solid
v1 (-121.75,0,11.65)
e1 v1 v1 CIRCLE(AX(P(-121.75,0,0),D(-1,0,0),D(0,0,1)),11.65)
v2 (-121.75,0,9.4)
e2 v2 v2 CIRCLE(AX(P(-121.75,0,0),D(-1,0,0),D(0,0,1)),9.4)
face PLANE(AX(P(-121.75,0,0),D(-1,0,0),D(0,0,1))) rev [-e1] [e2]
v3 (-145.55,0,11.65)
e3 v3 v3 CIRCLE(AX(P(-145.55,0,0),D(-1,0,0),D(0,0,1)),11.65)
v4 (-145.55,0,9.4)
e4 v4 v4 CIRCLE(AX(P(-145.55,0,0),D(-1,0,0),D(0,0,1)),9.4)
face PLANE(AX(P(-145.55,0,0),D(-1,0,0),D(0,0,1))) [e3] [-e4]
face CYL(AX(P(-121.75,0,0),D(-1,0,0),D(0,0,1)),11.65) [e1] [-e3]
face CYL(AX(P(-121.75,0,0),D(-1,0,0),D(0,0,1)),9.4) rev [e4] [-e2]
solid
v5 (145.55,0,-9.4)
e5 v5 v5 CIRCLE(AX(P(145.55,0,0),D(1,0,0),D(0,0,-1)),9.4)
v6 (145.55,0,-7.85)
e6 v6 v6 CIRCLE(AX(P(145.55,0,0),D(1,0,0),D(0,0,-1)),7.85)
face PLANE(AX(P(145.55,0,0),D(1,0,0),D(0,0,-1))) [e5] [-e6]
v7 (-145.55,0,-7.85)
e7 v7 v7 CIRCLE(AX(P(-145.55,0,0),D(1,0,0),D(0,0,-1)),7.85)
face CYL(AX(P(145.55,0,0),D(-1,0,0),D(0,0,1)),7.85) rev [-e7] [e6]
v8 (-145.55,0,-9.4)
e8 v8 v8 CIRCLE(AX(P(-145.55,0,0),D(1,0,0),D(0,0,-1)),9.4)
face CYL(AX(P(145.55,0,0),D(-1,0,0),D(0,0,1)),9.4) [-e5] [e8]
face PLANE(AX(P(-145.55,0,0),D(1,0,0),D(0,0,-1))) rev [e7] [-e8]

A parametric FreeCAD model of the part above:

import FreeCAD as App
import Part
import Sketcher

V = App.Vector

doc = App.newDocument("Part")
params = doc.addObject("Spreadsheet::Sheet", "Params")
for row, (alias, value) in enumerate([
    ("sketch1_diameter", "18.8 mm"),
    ("sketch1_diameter2", "15.7 mm"),
    ("pad1_length", "291.1 mm"),
    ("sketch2_diameter", "23.3 mm"),
    ("sketch2_diameter2", "18.8 mm"),
    ("pad2_length", "23.8 mm"),
], start=1):
    params.set(f"A{row}", alias)
    params.set(f"B{row}", "=" + value)
    params.setAlias(f"B{row}", alias)

body = doc.addObject("PartDesign::Body", "Body")

sketch1 = body.newObject("Sketcher::SketchObject", "Sketch")
sketch1.AttachmentSupport = (doc.getObject("YZ_Plane"), [""])
sketch1.MapMode = "FlatFace"
sketch1.addGeometry([
    Part.Circle(V(0, 0, 0), V(0, 0, 1), 9),
    Part.Circle(V(0, 0, 0), V(0, 0, 1), 8),
], False)
sketch1.addConstraint([
    Sketcher.Constraint("Coincident", 0, 3, -1, 1),
    Sketcher.Constraint("Coincident", 1, 3, -1, 1),
    Sketcher.Constraint("Diameter", 0, 18.8),
    Sketcher.Constraint("Diameter", 1, 15.7),
])
sketch1.setExpression("Constraints[2]", "Params.sketch1_diameter")
sketch1.setExpression("Constraints[3]", "Params.sketch1_diameter2")
pad1 = body.newObject("PartDesign::Pad", "Pad")
pad1.Profile = sketch1
pad1.setExpression("Length", "Params.pad1_length")
pad1.Midplane = True
body2 = doc.addObject("PartDesign::Body", "Body001")

sketch2 = body2.newObject("Sketcher::SketchObject", "Sketch001")
sketch2.AttachmentSupport = (doc.getObject("YZ_Plane001"), [""])
sketch2.MapMode = "FlatFace"
sketch2.AttachmentOffset = App.Placement(V(0, 0, -145.55), App.Rotation())
sketch2.addGeometry([
    Part.Circle(V(0, 0, 0), V(0, 0, 1), 12),
    Part.Circle(V(0, 0, 0), V(0, 0, 1), 9),
], False)
sketch2.addConstraint([
    Sketcher.Constraint("Coincident", 0, 3, -1, 1),
    Sketcher.Constraint("Coincident", 1, 3, -1, 1),
    Sketcher.Constraint("Diameter", 0, 23.3),
    Sketcher.Constraint("Diameter", 1, 18.8),
])
sketch2.setExpression("Constraints[2]", "Params.sketch2_diameter")
sketch2.setExpression("Constraints[3]", "Params.sketch2_diameter2")
pad2 = body2.newObject("PartDesign::Pad", "Pad001")
pad2.Profile = sketch2
pad2.setExpression("Length", "Params.pad2_length")

doc.recompute()
